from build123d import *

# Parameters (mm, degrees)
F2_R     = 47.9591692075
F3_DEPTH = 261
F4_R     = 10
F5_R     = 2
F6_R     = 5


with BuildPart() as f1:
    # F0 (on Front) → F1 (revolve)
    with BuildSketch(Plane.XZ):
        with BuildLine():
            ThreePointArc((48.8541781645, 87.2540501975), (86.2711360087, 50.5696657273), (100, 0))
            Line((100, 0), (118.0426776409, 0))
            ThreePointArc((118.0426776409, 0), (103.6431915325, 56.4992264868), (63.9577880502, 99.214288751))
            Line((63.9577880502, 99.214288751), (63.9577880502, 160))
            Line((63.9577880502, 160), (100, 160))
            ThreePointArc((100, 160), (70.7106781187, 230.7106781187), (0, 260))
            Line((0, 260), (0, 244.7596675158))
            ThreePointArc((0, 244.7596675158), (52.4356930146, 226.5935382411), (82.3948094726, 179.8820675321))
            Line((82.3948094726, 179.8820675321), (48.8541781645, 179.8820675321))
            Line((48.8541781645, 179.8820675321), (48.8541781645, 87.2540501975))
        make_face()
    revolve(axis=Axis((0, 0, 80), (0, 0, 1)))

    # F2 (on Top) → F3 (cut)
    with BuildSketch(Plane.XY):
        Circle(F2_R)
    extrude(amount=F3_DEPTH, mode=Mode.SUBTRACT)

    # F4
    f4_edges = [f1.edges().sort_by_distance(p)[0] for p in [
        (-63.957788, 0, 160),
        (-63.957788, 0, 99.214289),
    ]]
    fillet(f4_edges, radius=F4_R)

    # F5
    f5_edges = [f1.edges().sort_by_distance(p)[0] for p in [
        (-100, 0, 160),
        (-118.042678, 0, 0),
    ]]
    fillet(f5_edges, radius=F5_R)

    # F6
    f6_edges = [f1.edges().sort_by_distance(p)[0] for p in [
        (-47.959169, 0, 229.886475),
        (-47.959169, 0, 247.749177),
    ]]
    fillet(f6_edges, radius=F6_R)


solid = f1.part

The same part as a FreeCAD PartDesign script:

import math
import FreeCAD as App
import Part
import Sketcher
from FreeCAD import Vector
Q = App.Units.Quantity


def edges_at(feature, points):
    """Names of the edges that pass closest to the given points."""
    edges = feature.Shape.Edges
    near = lambda p: min(range(len(edges)), key=lambda i: edges[i].distToShape(Part.Vertex(*p))[0])
    return sorted({f"Edge{near(p) + 1}" for p in points})

doc = App.newDocument("Part")
params = doc.addObject("Spreadsheet::Sheet", "Params")
for row, (alias, value) in enumerate([
    ("sketch1_radius", "100 mm"),
    ("revolution_angle", "360 deg"),
    ("pocket1_length", "261 mm"),
    ("fillet_radius", "10 mm"),
    ("fillet2_radius", "2 mm"),
    ("fillet3_radius", "5 mm"),
], start=1):
    params.set(f"A{row}", alias)
    params.set(f"B{row}", "=" + value)
    params.setAlias(f"B{row}", alias)

body = doc.addObject("PartDesign::Body", "Body")

sketch1 = body.newObject("Sketcher::SketchObject", "Sketch")
sketch1.AttachmentSupport = (doc.getObject("XZ_Plane"), [""])
sketch1.MapMode = "FlatFace"
sketch1.addGeometry([
    Part.ArcOfCircle(Part.Circle(Vector(0, 0, 0), Vector(0, 0, 1), 100), math.radians(0), math.radians(61)),
    Part.LineSegment(Vector(100, 0, 0), Vector(118, 0, 0)),
    Part.ArcOfCircle(Part.Circle(Vector(0, 0, 0), Vector(0, 0, 1), 118), math.radians(0), math.radians(57)),
    Part.LineSegment(Vector(64, 99, 0), Vector(64, 160, 0)),
    Part.LineSegment(Vector(64, 160, 0), Vector(100, 160, 0)),
    Part.ArcOfCircle(Part.Circle(Vector(0, 160, 0), Vector(0, 0, 1), 100), math.radians(0), math.radians(90)),
    Part.LineSegment(Vector(0, 260, 0), Vector(0, 245, 0)),
    Part.ArcOfCircle(Part.Circle(Vector(0, 160, 0), Vector(0, 0, 1), 85), math.radians(14), math.radians(90)),
    Part.LineSegment(Vector(82, 180, 0), Vector(49, 180, 0)),
    Part.LineSegment(Vector(49, 180, 0), Vector(49, 87, 0)),
], False)
sketch1.addConstraint([
    Sketcher.Constraint("Coincident", 0, 1, 1, 1),
    Sketcher.Constraint("Coincident", 1, 2, 2, 1),
    Sketcher.Constraint("Coincident", 2, 2, 3, 1),
    Sketcher.Constraint("Coincident", 3, 2, 4, 1),
    Sketcher.Constraint("Coincident", 4, 2, 5, 1),
    Sketcher.Constraint("Coincident", 5, 2, 6, 1),
    Sketcher.Constraint("Coincident", 6, 2, 7, 2),
    Sketcher.Constraint("Coincident", 7, 1, 8, 1),
    Sketcher.Constraint("Coincident", 8, 2, 9, 1),
    Sketcher.Constraint("Coincident", 9, 2, 0, 2),
    Sketcher.Constraint("Horizontal", 1),
    Sketcher.Constraint("Vertical", 3),
    Sketcher.Constraint("Horizontal", 4),
    Sketcher.Constraint("Vertical", 6),
    Sketcher.Constraint("Horizontal", 8),
    Sketcher.Constraint("Vertical", 9),
    Sketcher.Constraint("Coincident", 0, 3, -1, 1),
    Sketcher.Constraint("Coincident", 2, 3, -1, 1),
    Sketcher.Constraint("Coincident", 7, 3, 5, 3),
    Sketcher.Constraint("Equal", 0, 5),
    Sketcher.Constraint("PointOnObject", 5, 3, -2),
    Sketcher.Constraint("PointOnObject", 0, 1, -1),
    Sketcher.Constraint("PointOnObject", 5, 2, -2),
    Sketcher.Constraint("Horizontal", 7, 3, 3, 2),
    Sketcher.Constraint("Radius", 0, Q("100 mm")),
    Sketcher.Constraint("DistanceY", -1, 1, 5, 3, Q("160 mm")),
    Sketcher.Constraint("Radius", 2, Q("118.042678 mm")),
    Sketcher.Constraint("Radius", 7, Q("84.759668 mm")),
    Sketcher.Constraint("DistanceX", 4, 1, 4, 2, Q("36.042212 mm")),
    Sketcher.Constraint("DistanceX", 8, 2, 8, 1, Q("33.540631 mm")),
    Sketcher.Constraint("DistanceY", 9, 2, 9, 1, Q("92.628017 mm")),
])
sketch1.setExpression("Constraints[24]", "Params.sketch1_radius")
revolution = body.newObject("PartDesign::Revolution", "Revolution")
revolution.Profile = sketch1
revolution.ReferenceAxis = (sketch1, ["V_Axis"])
revolution.setExpression("Angle", "Params.revolution_angle")

sketch2 = body.newObject("Sketcher::SketchObject", "Sketch001")
sketch2.AttachmentSupport = (doc.getObject("XY_Plane"), [""])
sketch2.MapMode = "FlatFace"
sketch2.addGeometry(Part.Circle(Vector(0, 0, 0), Vector(0, 0, 1), 48), False)
sketch2.addConstraint([
    Sketcher.Constraint("Coincident", 0, 3, -1, 1),
    Sketcher.Constraint("Diameter", 0, Q("95.918338 mm")),
])
pocket1 = body.newObject("PartDesign::Pocket", "Pocket")
pocket1.Profile = sketch2
pocket1.setExpression("Length", "Params.pocket1_length")
pocket1.Reversed = True
doc.recompute()

fillet = body.newObject("PartDesign::Fillet", "Fillet")
fillet.Base = (pocket1, edges_at(pocket1, [(-63.958, 0, 160), (-63.958, 0, 99.214)]))
fillet.setExpression("Radius", "Params.fillet_radius")
doc.recompute()

fillet2 = body.newObject("PartDesign::Fillet", "Fillet001")
fillet2.Base = (fillet, edges_at(fillet, [(-100, 0, 160), (-118.043, 0, 0)]))
fillet2.setExpression("Radius", "Params.fillet2_radius")
doc.recompute()

fillet3 = body.newObject("PartDesign::Fillet", "Fillet002")
fillet3.Base = (fillet2, edges_at(fillet2, [(-47.959, 0, 229.886), (-47.959, 0, 247.749)]))
fillet3.setExpression("Radius", "Params.fillet3_radius")

doc.recompute()
